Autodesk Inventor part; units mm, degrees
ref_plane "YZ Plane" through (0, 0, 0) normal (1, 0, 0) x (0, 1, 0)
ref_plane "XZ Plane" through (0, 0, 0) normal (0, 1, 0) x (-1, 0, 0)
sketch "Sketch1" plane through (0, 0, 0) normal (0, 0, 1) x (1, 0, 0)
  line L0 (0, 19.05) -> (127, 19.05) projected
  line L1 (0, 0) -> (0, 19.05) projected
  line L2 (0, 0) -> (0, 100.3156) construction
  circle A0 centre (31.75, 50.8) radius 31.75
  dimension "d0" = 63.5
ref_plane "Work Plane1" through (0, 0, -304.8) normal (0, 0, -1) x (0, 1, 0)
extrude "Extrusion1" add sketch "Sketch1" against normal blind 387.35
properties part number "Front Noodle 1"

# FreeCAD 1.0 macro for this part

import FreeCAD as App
import Part
import Sketcher

V = App.Vector
Q = App.Units.Quantity

doc = App.newDocument("Part")
params = doc.addObject("Spreadsheet::Sheet", "Params")
for row, (alias, value) in enumerate([
    ("sketch1_diameter", "2.5 in"),
    ("pad1_length", "15.25 in"),
], start=1):
    params.set(f"A{row}", alias)
    params.set(f"B{row}", "=" + value)
    params.setAlias(f"B{row}", alias)

body = doc.addObject("PartDesign::Body", "Body")

# Sketch on XY plane
sketch1 = body.newObject("Sketcher::SketchObject", "Sketch")
sketch1.AttachmentSupport = (doc.getObject("XY_Plane"), [""])
sketch1.MapMode = "FlatFace"
sketch1.addGeometry(Part.Circle(V(32, 51, 0), V(0, 0, 1), 32), False)
sketch1.addConstraint([
    Sketcher.Constraint("Diameter", 0, Q("2.5 in")),
    Sketcher.Constraint("DistanceY", -1, 1, 0, 3, Q("2 in")),
    Sketcher.Constraint("DistanceX", -1, 1, 0, 3, Q("1.25 in")),
])
sketch1.setExpression("Constraints[0]", "Params.sketch1_diameter")
pad1 = body.newObject("PartDesign::Pad", "Pad")
pad1.Profile = sketch1
pad1.setExpression("Length", "Params.pad1_length")
pad1.Reversed = True

doc.recompute()
